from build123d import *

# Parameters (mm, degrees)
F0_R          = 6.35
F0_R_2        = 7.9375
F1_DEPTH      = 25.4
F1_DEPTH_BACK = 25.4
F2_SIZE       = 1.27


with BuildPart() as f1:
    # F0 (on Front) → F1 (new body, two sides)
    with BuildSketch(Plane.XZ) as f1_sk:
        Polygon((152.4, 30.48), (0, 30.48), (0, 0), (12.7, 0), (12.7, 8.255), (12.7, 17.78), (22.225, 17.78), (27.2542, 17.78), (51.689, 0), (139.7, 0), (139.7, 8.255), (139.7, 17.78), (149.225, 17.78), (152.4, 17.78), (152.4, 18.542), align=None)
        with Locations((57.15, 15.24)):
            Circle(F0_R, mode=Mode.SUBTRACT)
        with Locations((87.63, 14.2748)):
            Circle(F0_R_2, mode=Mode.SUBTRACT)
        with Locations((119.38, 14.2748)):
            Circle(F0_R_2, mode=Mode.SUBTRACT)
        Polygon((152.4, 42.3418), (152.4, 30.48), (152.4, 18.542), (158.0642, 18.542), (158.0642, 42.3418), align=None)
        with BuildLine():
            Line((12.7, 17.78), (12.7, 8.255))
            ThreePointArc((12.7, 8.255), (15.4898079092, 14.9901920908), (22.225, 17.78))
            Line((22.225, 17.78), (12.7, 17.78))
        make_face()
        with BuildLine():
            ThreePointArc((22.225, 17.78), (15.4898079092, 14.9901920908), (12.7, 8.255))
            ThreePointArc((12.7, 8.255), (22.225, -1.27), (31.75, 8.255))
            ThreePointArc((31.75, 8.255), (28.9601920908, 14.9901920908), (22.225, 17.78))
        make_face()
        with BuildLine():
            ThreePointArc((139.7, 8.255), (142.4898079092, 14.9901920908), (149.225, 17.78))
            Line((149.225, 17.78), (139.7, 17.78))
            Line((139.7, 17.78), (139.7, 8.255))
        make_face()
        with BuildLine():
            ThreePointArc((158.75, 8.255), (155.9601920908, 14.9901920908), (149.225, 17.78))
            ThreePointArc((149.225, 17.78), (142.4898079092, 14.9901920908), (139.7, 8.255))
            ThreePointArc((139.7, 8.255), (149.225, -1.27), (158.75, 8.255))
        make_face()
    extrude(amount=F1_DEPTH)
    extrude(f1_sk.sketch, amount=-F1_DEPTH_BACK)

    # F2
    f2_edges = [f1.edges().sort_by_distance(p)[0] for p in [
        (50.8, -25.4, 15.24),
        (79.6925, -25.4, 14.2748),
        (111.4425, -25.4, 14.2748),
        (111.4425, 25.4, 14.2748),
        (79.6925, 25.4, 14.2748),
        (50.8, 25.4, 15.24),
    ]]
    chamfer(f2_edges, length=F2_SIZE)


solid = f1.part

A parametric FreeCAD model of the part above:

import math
import FreeCAD as App
import Part
import Sketcher
Q = App.Units.Quantity


def edges_at(feature, points):
    """Names of the edges that pass closest to the given points."""
    edges = feature.Shape.Edges
    near = lambda p: min(range(len(edges)), key=lambda i: edges[i].distToShape(Part.Vertex(*p))[0])
    return sorted({f"Edge{near(p) + 1}" for p in points})

doc = App.newDocument("Part")
body = doc.addObject("PartDesign::Body", "Body")

sketch1 = doc.addObject("Sketcher::SketchObject", "Sketch")
body.addObject(sketch1)
sketch1.AttachmentSupport = (doc.XZ_Plane, [""])
sketch1.MapMode = "FlatFace"
sketch1.addGeometry(Part.LineSegment(App.Vector(152.4, 30.5, 0), App.Vector(0, 30.5, 0)), False)
sketch1.addGeometry(Part.LineSegment(App.Vector(0, 30.5, 0), App.Vector(0, 0, 0)), False)
sketch1.addGeometry(Part.LineSegment(App.Vector(0, 0, 0), App.Vector(12.7, 0, 0)), False)
sketch1.addGeometry(Part.LineSegment(App.Vector(12.7, 0, 0), App.Vector(12.7, 8.3, 0)), False)
sketch1.addGeometry(Part.ArcOfCircle(Part.Circle(App.Vector(22.2, 8.3, 0), App.Vector(0, 0, 1), 9.5), math.radians(180), math.radians(450)), False)
sketch1.addGeometry(Part.LineSegment(App.Vector(22.2, 17.8, 0), App.Vector(27.3, 17.8, 0)), False)
sketch1.addGeometry(Part.LineSegment(App.Vector(27.3, 17.8, 0), App.Vector(51.7, 0, 0)), False)
sketch1.addGeometry(Part.LineSegment(App.Vector(51.7, 0, 0), App.Vector(139.7, 0, 0)), False)
sketch1.addGeometry(Part.LineSegment(App.Vector(139.7, 0, 0), App.Vector(139.7, 8.3, 0)), False)
sketch1.addGeometry(Part.ArcOfCircle(Part.Circle(App.Vector(149.2, 8.3, 0), App.Vector(0, 0, 1), 9.5), math.radians(180), math.radians(450)), False)
sketch1.addGeometry(Part.LineSegment(App.Vector(149.2, 17.8, 0), App.Vector(152.4, 17.8, 0)), False)
sketch1.addGeometry(Part.LineSegment(App.Vector(152.4, 17.8, 0), App.Vector(152.4, 18.5, 0)), False)
sketch1.addGeometry(Part.LineSegment(App.Vector(152.4, 18.5, 0), App.Vector(158.1, 18.5, 0)), False)
sketch1.addGeometry(Part.LineSegment(App.Vector(158.1, 18.5, 0), App.Vector(158.1, 42.3, 0)), False)
sketch1.addGeometry(Part.LineSegment(App.Vector(158.1, 42.3, 0), App.Vector(152.4, 42.3, 0)), False)
sketch1.addGeometry(Part.LineSegment(App.Vector(152.4, 42.3, 0), App.Vector(152.4, 30.5, 0)), False)
sketch1.addGeometry(Part.Circle(App.Vector(57.1, 15.2, 0), App.Vector(0, 0, 1), 6.3), False)
sketch1.addGeometry(Part.Circle(App.Vector(87.6, 14.3, 0), App.Vector(0, 0, 1), 7.9), False)
sketch1.addGeometry(Part.Circle(App.Vector(119.4, 14.3, 0), App.Vector(0, 0, 1), 7.9), False)
sketch1.addConstraint(Sketcher.Constraint("Coincident", 0, 2, 1, 1))
sketch1.addConstraint(Sketcher.Constraint("Coincident", 1, 2, 2, 1))
sketch1.addConstraint(Sketcher.Constraint("Coincident", 2, 2, 3, 1))
sketch1.addConstraint(Sketcher.Constraint("Tangent", 3, 2, 4, 1))
sketch1.addConstraint(Sketcher.Constraint("Tangent", 4, 2, 5, 1))
sketch1.addConstraint(Sketcher.Constraint("Coincident", 5, 2, 6, 1))
sketch1.addConstraint(Sketcher.Constraint("Coincident", 6, 2, 7, 1))
sketch1.addConstraint(Sketcher.Constraint("Coincident", 7, 2, 8, 1))
sketch1.addConstraint(Sketcher.Constraint("Tangent", 8, 2, 9, 1))
sketch1.addConstraint(Sketcher.Constraint("Tangent", 9, 2, 10, 1))
sketch1.addConstraint(Sketcher.Constraint("Coincident", 10, 2, 11, 1))
sketch1.addConstraint(Sketcher.Constraint("Coincident", 11, 2, 12, 1))
sketch1.addConstraint(Sketcher.Constraint("Coincident", 12, 2, 13, 1))
sketch1.addConstraint(Sketcher.Constraint("Coincident", 13, 2, 14, 1))
sketch1.addConstraint(Sketcher.Constraint("Coincident", 14, 2, 15, 1))
sketch1.addConstraint(Sketcher.Constraint("Coincident", 15, 2, 0, 1))
sketch1.addConstraint(Sketcher.Constraint("Horizontal", 0))
sketch1.addConstraint(Sketcher.Constraint("Vertical", 1))
sketch1.addConstraint(Sketcher.Constraint("Horizontal", 2))
sketch1.addConstraint(Sketcher.Constraint("Vertical", 3))
sketch1.addConstraint(Sketcher.Constraint("Horizontal", 5))
sketch1.addConstraint(Sketcher.Constraint("Horizontal", 7))
sketch1.addConstraint(Sketcher.Constraint("Vertical", 8))
sketch1.addConstraint(Sketcher.Constraint("Horizontal", 10))
sketch1.addConstraint(Sketcher.Constraint("Vertical", 11))
sketch1.addConstraint(Sketcher.Constraint("Horizontal", 12))
sketch1.addConstraint(Sketcher.Constraint("Vertical", 13))
sketch1.addConstraint(Sketcher.Constraint("Horizontal", 14))
sketch1.addConstraint(Sketcher.Constraint("Vertical", 15))
sketch1.addConstraint(Sketcher.Constraint("Coincident", 1, 2, -1, 1))
sketch1.addConstraint(Sketcher.Constraint("Equal", 4, 9))
sketch1.addConstraint(Sketcher.Constraint("Equal", 17, 18))
sketch1.addConstraint(Sketcher.Constraint("PointOnObject", 6, 2, -1))
sketch1.addConstraint(Sketcher.Constraint("Horizontal", 4, 3, 9, 3))
sketch1.addConstraint(Sketcher.Constraint("Horizontal", 17, 3, 18, 3))
sketch1.addConstraint(Sketcher.Constraint("Vertical", 11, 2, 14, 2))
sketch1.addConstraint(Sketcher.Constraint("Diameter", 16, Q("0.5 in")))
sketch1.addConstraint(Sketcher.Constraint("DistanceX", 0, 2, 0, 1, Q("6 in")))
sketch1.addConstraint(Sketcher.Constraint("Diameter", 17, Q("0.625 in")))
sketch1.addConstraint(Sketcher.Constraint("DistanceX", 2, 1, 2, 2, Q("0.5 in")))
sketch1.addConstraint(Sketcher.Constraint("DistanceY", 1, 2, 1, 1, Q("1.2 in")))
sketch1.addConstraint(Sketcher.Constraint("Radius", 4, Q("0.375 in")))
sketch1.addConstraint(Sketcher.Constraint("DistanceX", 4, 3, 9, 3, Q("5 in")))
sketch1.addConstraint(Sketcher.Constraint("DistanceY", 11, 1, 11, 2, Q("0.03 in")))
sketch1.addConstraint(Sketcher.Constraint("DistanceY", -1, 1, 16, 3, Q("0.6 in")))
sketch1.addConstraint(Sketcher.Constraint("DistanceX", -1, 1, 18, 3, Q("4.7 in")))
sketch1.addConstraint(Sketcher.Constraint("DistanceY", -1, 1, 4, 2, Q("0.7 in")))
sketch1.addConstraint(Sketcher.Constraint("DistanceX", 16, 3, 17, 3, Q("1.2 in")))
sketch1.addConstraint(Sketcher.Constraint("DistanceX", 5, 1, 5, 2, Q("0.198 in")))
sketch1.addConstraint(Sketcher.Constraint("DistanceX", 7, 1, 7, 2, Q("3.465 in")))
sketch1.addConstraint(Sketcher.Constraint("DistanceX", 12, 1, 12, 2, Q("0.223 in")))
sketch1.addConstraint(Sketcher.Constraint("DistanceY", 13, 1, 13, 2, Q("0.937 in")))
sketch1.addConstraint(Sketcher.Constraint("DistanceX", -1, 1, 16, 3, Q("2.25 in")))
sketch1.addConstraint(Sketcher.Constraint("DistanceY", -1, 1, 17, 3, Q("0.562 in")))
pad1 = doc.addObject("PartDesign::Pad", "Pad")
body.addObject(pad1)
pad1.Profile = sketch1
pad1.Type = "TwoLengths"
pad1.Length = Q("1 in")
pad1.Length2 = Q("1 in")
doc.recompute()

chamfer = doc.addObject("PartDesign::Chamfer", "Chamfer")
body.addObject(chamfer)
chamfer.Base = (pad1, edges_at(pad1, [
    (50.8, -25.4, 15.24),
    (79.692, -25.4, 14.275),
    (111.442, -25.4, 14.275),
    (111.442, 25.4, 14.275),
    (79.692, 25.4, 14.275),
    (50.8, 25.4, 15.24),
]))
chamfer.Size = Q("0.05 in")

doc.recompute()
